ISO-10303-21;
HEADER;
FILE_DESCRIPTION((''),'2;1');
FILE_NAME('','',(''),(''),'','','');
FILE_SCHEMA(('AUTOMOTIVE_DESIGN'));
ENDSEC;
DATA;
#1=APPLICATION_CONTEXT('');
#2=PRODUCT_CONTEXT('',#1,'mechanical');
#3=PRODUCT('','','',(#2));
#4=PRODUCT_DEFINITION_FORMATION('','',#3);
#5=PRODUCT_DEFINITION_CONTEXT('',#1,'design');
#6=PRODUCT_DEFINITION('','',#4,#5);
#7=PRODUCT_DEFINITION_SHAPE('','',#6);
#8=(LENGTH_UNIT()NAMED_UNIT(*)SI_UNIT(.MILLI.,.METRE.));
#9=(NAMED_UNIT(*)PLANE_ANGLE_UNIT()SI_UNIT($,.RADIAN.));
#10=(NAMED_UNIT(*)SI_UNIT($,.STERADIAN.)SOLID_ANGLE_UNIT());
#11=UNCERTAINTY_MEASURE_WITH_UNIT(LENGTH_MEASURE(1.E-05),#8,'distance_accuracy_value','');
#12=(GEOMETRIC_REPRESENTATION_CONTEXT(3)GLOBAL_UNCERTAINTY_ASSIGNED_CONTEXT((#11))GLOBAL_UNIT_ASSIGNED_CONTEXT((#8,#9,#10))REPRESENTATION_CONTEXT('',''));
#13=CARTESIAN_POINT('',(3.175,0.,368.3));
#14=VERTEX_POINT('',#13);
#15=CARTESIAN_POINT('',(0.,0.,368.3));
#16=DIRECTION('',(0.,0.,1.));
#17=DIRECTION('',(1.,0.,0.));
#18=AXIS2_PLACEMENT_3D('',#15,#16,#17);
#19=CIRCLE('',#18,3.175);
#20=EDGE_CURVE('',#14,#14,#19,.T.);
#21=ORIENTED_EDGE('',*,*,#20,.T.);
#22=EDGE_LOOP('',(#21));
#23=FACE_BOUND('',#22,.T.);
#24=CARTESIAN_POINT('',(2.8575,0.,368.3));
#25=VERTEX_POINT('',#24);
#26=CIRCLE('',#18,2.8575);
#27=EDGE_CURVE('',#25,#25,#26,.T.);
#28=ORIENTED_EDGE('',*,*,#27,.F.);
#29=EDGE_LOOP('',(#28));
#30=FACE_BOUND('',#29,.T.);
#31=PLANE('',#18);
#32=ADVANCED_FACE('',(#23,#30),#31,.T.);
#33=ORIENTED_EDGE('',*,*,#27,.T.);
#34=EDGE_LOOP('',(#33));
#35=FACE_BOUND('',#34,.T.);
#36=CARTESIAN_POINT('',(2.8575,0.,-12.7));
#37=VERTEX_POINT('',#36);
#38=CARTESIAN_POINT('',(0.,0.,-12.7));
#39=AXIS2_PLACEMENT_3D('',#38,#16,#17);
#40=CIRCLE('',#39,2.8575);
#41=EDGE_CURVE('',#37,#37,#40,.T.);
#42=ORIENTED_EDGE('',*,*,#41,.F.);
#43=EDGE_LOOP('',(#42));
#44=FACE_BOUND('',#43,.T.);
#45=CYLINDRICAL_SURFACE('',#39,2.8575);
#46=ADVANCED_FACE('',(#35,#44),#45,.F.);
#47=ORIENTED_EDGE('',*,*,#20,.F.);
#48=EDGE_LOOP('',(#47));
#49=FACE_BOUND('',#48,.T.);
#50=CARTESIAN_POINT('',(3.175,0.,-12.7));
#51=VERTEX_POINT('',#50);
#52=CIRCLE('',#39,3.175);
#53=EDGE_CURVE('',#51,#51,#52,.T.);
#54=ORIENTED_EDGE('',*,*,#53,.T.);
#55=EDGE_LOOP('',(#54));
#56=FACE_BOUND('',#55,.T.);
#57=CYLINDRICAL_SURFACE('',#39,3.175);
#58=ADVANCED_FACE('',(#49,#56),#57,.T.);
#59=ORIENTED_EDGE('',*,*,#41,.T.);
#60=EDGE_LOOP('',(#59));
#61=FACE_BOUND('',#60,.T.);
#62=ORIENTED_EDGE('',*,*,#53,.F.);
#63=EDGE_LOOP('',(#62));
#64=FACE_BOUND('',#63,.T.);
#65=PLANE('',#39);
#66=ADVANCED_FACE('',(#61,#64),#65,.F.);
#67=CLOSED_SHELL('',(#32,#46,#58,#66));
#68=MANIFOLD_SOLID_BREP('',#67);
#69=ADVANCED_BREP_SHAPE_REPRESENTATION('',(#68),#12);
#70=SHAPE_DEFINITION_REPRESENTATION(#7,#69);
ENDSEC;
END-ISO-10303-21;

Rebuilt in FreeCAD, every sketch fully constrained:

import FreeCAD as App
import Part
import Sketcher
from FreeCAD import Vector
Q = App.Units.Quantity

doc = App.newDocument("Part")
body = doc.addObject("PartDesign::Body", "Body")

# Sketch on XY plane
sketch1 = body.newObject("Sketcher::SketchObject", "Sketch")
sketch1.AttachmentSupport = (doc.getObject("XY_Plane"), [""])
sketch1.MapMode = "FlatFace"
sketch1.addGeometry([
    Part.Circle(Vector(0, 0, 0), Vector(0, 0, 1), 3.2),
    Part.Circle(Vector(0, 0, 0), Vector(0, 0, 1), 2.9),
], False)
sketch1.addConstraint([
    Sketcher.Constraint("Coincident", 0, 3, -1, 1),
    Sketcher.Constraint("Coincident", 1, 3, -1, 1),
    Sketcher.Constraint("Diameter", 0, Q("0.25 in")),
    Sketcher.Constraint("Diameter", 1, Q("0.225 in")),
])
pad1 = body.newObject("PartDesign::Pad", "Pad")
pad1.Profile = sketch1
pad1.Type = "TwoLengths"
pad1.Length = Q("14.5 in")
pad1.Length2 = Q("0.5 in")

doc.recompute()
